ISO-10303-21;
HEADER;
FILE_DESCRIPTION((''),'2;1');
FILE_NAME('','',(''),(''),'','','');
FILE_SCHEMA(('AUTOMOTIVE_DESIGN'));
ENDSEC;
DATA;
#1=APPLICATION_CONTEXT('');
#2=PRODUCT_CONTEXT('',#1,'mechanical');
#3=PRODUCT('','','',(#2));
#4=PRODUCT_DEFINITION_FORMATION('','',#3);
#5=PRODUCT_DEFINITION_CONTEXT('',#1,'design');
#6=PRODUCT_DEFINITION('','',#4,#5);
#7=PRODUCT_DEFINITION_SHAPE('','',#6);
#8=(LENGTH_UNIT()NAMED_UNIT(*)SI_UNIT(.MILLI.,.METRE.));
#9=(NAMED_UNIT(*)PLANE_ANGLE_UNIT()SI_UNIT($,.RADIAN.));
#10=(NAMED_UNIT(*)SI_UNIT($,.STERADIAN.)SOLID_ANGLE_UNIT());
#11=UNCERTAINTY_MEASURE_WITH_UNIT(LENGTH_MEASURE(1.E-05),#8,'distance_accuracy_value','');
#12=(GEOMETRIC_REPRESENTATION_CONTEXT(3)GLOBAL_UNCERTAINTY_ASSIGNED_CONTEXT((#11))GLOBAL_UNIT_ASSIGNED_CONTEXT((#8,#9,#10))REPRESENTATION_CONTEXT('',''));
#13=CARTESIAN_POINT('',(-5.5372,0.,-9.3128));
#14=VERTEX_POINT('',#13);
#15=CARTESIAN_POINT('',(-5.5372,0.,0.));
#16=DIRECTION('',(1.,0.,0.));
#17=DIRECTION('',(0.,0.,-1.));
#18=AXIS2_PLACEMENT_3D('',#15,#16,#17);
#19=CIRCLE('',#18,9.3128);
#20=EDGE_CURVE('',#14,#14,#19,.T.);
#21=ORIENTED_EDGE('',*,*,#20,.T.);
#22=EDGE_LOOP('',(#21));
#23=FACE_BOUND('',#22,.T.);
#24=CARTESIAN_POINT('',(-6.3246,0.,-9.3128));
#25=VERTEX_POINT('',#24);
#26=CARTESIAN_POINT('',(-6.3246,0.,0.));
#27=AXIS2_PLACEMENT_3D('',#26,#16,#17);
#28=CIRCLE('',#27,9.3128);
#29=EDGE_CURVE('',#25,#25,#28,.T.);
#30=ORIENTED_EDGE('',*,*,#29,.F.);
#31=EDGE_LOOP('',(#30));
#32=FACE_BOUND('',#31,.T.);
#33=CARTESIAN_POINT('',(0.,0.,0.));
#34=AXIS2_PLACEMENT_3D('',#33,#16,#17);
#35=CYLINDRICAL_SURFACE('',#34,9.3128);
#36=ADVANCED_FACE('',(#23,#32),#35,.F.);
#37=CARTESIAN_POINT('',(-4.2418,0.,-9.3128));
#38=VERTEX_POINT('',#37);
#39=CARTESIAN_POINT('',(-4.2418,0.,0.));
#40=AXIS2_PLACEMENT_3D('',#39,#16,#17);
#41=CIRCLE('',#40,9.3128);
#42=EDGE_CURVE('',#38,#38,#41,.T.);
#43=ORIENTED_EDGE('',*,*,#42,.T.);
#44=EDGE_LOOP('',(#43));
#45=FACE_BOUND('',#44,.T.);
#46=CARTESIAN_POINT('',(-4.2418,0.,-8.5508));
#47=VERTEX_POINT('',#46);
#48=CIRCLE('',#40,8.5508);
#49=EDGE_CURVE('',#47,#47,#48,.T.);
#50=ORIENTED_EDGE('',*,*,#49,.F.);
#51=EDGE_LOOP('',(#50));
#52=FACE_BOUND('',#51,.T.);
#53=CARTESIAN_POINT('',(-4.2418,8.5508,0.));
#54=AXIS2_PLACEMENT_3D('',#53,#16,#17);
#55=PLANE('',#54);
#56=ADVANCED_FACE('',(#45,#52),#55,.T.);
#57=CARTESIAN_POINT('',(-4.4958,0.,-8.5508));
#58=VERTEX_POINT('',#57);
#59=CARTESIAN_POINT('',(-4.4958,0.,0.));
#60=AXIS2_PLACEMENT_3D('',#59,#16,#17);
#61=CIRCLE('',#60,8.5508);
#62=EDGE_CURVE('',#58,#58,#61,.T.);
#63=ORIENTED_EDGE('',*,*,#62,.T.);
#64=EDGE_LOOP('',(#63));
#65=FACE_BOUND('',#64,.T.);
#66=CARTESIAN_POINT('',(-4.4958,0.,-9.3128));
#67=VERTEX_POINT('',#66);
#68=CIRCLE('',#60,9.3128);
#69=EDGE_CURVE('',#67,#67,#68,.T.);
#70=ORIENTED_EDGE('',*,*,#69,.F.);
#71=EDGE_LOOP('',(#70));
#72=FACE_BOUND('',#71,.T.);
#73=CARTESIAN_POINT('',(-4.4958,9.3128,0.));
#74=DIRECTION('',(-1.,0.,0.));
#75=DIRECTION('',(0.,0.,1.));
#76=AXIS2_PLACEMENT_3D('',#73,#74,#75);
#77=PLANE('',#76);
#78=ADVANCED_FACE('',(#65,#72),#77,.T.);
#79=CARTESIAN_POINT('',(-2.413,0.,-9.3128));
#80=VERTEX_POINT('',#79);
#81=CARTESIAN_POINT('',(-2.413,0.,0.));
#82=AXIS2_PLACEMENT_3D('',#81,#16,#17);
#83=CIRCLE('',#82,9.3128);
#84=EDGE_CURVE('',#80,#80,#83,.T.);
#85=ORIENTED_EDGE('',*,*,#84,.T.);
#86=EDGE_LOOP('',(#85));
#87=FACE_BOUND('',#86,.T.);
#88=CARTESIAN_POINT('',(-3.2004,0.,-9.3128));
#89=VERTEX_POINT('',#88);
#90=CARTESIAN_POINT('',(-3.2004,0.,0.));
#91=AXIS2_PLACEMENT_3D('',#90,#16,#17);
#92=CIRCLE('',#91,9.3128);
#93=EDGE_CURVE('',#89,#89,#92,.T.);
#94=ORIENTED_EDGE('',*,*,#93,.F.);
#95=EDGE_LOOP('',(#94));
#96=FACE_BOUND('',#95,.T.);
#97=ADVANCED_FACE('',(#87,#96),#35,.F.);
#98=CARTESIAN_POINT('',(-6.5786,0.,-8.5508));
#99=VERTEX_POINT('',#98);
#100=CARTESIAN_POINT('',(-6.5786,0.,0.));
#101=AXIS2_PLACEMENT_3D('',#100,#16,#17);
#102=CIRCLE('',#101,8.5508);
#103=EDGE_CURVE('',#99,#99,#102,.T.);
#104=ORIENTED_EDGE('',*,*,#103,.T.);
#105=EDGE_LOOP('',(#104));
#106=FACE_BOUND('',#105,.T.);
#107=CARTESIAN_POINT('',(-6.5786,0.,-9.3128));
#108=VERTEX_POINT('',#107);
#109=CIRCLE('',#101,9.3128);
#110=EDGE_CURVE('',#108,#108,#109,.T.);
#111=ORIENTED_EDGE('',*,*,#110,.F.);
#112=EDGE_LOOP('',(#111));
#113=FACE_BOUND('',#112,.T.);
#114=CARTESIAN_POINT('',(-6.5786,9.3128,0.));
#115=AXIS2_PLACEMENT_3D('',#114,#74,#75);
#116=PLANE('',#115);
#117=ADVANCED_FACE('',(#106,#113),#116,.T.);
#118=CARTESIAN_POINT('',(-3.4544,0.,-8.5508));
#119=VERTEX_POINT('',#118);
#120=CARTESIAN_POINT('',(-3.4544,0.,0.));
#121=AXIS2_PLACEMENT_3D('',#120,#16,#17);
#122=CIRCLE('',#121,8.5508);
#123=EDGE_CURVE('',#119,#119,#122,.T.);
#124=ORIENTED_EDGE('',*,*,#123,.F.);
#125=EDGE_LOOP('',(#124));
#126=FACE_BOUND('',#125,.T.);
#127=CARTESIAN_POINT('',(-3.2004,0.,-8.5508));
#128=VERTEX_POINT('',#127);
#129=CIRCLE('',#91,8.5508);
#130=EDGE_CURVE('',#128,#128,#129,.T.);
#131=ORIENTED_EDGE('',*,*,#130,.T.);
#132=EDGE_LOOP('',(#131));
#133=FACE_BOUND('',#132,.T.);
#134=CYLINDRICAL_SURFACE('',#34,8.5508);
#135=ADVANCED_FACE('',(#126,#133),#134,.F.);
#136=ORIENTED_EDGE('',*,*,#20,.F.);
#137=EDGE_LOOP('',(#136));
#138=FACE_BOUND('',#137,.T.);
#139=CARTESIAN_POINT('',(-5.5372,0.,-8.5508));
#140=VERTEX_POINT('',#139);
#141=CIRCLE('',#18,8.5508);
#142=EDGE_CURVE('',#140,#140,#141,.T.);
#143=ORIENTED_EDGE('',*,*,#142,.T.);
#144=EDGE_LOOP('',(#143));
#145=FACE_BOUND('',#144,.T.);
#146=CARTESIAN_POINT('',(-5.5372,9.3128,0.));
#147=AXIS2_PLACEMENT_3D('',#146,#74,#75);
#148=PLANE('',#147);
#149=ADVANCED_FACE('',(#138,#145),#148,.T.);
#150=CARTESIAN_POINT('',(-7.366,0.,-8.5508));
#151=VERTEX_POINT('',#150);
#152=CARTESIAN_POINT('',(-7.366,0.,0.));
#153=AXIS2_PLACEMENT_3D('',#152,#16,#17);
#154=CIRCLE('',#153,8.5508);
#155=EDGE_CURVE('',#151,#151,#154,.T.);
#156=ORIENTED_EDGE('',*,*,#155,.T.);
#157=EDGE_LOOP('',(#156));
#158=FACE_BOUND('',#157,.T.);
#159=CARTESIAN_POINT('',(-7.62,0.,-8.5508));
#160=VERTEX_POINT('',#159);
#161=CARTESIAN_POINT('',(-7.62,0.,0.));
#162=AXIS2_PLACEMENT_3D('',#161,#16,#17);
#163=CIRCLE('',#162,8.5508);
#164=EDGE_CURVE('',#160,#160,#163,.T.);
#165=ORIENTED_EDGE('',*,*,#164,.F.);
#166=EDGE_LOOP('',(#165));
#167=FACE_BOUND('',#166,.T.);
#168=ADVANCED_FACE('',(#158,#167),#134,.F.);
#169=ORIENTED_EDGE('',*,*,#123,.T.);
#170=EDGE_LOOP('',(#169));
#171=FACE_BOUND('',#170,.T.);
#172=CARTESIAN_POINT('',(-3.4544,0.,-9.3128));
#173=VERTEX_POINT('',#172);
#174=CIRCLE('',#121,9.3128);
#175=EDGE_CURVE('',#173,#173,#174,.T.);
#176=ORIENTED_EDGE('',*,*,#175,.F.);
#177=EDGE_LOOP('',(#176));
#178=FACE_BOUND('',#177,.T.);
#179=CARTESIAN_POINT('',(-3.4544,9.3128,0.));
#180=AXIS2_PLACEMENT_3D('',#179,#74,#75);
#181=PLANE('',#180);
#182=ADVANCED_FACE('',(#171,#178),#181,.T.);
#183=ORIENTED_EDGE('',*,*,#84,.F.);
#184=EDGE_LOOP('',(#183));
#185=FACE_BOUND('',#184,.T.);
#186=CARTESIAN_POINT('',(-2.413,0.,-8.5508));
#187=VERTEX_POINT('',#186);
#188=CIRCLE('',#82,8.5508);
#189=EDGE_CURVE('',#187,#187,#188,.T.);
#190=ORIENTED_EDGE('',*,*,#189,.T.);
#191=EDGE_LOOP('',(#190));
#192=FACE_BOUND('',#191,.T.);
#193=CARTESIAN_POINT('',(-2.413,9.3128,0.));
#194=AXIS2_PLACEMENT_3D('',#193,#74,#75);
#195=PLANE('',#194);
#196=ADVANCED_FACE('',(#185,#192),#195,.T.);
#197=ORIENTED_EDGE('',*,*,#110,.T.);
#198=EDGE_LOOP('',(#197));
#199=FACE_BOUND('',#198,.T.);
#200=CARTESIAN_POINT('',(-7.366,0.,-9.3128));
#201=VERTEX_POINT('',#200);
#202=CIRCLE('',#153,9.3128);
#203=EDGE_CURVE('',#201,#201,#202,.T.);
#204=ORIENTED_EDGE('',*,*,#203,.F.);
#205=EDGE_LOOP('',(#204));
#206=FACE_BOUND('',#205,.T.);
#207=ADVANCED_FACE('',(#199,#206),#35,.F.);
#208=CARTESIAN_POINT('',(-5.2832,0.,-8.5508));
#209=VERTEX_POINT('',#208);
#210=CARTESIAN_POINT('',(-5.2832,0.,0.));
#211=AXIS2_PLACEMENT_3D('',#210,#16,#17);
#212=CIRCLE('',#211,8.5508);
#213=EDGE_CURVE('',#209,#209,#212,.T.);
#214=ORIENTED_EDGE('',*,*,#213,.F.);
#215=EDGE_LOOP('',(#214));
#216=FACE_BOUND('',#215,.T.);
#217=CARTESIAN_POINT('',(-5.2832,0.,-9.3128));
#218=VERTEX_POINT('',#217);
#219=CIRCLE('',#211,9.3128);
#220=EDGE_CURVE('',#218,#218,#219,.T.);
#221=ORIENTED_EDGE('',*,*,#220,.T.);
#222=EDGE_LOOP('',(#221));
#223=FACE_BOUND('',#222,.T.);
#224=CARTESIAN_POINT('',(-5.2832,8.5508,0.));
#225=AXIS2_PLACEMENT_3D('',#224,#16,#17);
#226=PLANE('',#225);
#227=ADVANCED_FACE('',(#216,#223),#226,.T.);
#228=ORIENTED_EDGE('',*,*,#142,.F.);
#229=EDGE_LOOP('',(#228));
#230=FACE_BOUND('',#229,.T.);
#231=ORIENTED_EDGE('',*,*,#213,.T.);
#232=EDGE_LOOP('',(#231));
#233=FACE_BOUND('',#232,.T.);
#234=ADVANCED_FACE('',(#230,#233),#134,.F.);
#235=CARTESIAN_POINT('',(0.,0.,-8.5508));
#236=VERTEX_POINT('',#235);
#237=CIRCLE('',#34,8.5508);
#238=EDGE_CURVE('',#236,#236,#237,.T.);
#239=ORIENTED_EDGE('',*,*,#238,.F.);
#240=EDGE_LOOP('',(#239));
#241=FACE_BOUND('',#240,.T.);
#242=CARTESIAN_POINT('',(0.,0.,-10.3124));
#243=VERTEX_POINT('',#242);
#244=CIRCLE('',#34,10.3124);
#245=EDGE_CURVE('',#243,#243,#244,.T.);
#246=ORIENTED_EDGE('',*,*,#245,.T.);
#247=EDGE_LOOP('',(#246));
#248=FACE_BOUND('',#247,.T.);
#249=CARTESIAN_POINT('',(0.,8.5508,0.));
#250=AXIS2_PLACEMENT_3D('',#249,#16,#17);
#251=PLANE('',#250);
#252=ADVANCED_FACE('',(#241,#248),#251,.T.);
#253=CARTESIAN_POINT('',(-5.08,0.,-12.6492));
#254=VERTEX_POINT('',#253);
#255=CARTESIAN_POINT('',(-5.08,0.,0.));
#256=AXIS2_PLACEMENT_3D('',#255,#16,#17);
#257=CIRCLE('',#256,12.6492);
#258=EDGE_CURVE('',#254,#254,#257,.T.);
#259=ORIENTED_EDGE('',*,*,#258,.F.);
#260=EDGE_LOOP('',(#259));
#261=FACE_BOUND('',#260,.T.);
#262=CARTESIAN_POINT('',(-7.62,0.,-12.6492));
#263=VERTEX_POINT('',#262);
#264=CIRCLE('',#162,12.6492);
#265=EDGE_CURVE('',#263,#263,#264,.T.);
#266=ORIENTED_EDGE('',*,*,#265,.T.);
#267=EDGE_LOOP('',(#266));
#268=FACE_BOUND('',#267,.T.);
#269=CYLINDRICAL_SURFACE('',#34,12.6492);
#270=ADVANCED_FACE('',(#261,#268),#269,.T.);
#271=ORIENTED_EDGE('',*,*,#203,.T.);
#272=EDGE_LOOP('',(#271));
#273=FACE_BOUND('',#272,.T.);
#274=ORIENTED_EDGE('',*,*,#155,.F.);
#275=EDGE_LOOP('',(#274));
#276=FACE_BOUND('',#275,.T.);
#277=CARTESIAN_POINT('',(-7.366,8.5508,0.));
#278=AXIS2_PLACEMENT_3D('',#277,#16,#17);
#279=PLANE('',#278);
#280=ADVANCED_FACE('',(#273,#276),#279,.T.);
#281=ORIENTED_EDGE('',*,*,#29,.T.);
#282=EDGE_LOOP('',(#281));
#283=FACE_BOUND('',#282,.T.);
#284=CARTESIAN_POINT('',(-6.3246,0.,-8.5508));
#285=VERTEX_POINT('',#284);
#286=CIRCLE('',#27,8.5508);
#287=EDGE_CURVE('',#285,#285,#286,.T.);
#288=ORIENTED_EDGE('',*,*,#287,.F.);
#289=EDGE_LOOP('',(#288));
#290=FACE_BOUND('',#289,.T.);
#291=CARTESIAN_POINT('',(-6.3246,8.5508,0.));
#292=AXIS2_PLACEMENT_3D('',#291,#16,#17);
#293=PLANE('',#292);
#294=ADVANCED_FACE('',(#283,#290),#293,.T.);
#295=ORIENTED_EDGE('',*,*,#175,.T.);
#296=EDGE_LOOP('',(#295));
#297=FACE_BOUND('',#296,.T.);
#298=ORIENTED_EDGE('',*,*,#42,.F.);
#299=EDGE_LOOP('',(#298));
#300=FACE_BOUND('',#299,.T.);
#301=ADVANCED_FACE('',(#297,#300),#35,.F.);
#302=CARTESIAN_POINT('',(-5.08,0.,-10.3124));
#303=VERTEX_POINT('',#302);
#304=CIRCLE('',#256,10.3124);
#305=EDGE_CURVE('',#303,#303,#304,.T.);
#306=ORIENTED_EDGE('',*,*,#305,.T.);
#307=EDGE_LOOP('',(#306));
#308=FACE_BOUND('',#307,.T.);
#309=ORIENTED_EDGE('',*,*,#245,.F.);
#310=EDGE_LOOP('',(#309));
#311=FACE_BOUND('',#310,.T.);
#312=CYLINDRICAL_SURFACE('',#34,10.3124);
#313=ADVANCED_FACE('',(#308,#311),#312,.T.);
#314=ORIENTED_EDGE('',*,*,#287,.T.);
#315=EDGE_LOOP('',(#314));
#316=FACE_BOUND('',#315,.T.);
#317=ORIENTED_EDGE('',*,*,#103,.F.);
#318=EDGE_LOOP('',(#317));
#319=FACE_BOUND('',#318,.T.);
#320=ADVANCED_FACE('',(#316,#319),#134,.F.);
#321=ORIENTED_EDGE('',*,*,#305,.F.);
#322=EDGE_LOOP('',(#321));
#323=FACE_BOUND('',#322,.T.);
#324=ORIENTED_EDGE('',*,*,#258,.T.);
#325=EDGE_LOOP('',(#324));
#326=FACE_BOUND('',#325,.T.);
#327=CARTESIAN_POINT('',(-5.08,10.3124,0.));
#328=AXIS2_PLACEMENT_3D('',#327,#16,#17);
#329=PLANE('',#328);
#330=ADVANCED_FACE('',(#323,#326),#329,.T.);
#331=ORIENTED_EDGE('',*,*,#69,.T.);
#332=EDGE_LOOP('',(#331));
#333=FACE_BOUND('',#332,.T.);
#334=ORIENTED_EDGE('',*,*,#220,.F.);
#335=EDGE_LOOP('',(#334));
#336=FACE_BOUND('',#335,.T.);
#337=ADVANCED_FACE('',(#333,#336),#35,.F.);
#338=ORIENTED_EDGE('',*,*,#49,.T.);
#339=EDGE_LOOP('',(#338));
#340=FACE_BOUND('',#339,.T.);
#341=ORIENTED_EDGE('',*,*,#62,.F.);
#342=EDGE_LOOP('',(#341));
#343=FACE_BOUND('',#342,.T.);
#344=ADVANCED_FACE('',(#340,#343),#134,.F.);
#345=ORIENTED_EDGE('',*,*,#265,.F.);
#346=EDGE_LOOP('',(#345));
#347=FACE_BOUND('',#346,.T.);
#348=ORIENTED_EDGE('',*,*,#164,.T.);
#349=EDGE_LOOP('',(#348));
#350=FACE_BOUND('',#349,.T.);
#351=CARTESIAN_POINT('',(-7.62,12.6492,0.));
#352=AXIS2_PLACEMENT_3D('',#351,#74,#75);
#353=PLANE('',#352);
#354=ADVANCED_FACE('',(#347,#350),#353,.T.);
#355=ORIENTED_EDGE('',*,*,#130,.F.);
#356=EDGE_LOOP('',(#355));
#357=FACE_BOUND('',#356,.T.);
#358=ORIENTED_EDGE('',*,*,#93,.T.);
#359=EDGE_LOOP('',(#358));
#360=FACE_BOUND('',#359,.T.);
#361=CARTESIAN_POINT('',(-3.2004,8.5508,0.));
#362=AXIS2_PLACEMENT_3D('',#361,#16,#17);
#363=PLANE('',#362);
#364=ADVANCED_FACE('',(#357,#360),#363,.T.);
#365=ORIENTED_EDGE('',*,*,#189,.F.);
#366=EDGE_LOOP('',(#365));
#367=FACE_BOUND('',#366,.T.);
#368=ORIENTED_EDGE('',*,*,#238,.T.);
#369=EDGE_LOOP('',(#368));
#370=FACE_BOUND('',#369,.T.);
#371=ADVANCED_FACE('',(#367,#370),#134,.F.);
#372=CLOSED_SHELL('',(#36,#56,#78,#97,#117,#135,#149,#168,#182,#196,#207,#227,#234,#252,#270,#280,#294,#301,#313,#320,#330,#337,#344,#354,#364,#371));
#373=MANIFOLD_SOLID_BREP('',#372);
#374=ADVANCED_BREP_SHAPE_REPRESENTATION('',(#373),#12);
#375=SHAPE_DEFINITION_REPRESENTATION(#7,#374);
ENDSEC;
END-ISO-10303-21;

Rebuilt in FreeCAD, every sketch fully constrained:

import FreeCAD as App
import Part
import Sketcher
Q = App.Units.Quantity


def add_polygon(sketch, points):
    """Adds a closed chain of lines whose ends are joined by coincident constraints."""
    first, n = sketch.GeometryCount, len(points)
    for a, b in zip(points, points[1:] + points[:1]):
        sketch.addGeometry(Part.LineSegment(App.Vector(*a, 0), App.Vector(*b, 0)), False)
    for i in range(n):
        sketch.addConstraint(Sketcher.Constraint("Coincident", first + i, 2, first + (i + 1) % n, 1))

doc = App.newDocument("Part")
body = doc.addObject("PartDesign::Body", "Body")

sketch1 = body.newObject("Sketcher::SketchObject", "Sketch")
sketch1.AttachmentSupport = (doc.getObject("XY_Plane"), [""])
sketch1.MapMode = "FlatFace"
add_polygon(sketch1, [(-7.62, 12.65), (-7.62, 8.55), (-7.37, 8.55), (-7.37, 9.31), (-6.58, 9.31), (-6.58, 8.55), (-6.32, 8.55), (-6.32, 9.31), (-5.54, 9.31), (-5.54, 8.55), (-5.28, 8.55), (-5.28, 9.31), (-4.5, 9.31), (-4.5, 8.55), (-4.24, 8.55), (-4.24, 9.31), (-3.45, 9.31), (-3.45, 8.55), (-3.2, 8.55), (-3.2, 9.31), (-2.41, 9.31), (-2.41, 8.55), (0, 8.55), (0, 10.31), (-5.08, 10.31), (-5.08, 12.65)])
sketch1.addConstraint(Sketcher.Constraint("Vertical", 0))
sketch1.addConstraint(Sketcher.Constraint("Horizontal", 1))
sketch1.addConstraint(Sketcher.Constraint("Vertical", 2))
sketch1.addConstraint(Sketcher.Constraint("Horizontal", 3))
sketch1.addConstraint(Sketcher.Constraint("Vertical", 4))
sketch1.addConstraint(Sketcher.Constraint("Horizontal", 5))
sketch1.addConstraint(Sketcher.Constraint("Vertical", 6))
sketch1.addConstraint(Sketcher.Constraint("Horizontal", 7))
sketch1.addConstraint(Sketcher.Constraint("Vertical", 8))
sketch1.addConstraint(Sketcher.Constraint("Horizontal", 9))
sketch1.addConstraint(Sketcher.Constraint("Vertical", 10))
sketch1.addConstraint(Sketcher.Constraint("Horizontal", 11))
sketch1.addConstraint(Sketcher.Constraint("Vertical", 12))
sketch1.addConstraint(Sketcher.Constraint("Horizontal", 13))
sketch1.addConstraint(Sketcher.Constraint("Vertical", 14))
sketch1.addConstraint(Sketcher.Constraint("Horizontal", 15))
sketch1.addConstraint(Sketcher.Constraint("Vertical", 16))
sketch1.addConstraint(Sketcher.Constraint("Horizontal", 17))
sketch1.addConstraint(Sketcher.Constraint("Vertical", 18))
sketch1.addConstraint(Sketcher.Constraint("Horizontal", 19))
sketch1.addConstraint(Sketcher.Constraint("Vertical", 20))
sketch1.addConstraint(Sketcher.Constraint("Horizontal", 21))
sketch1.addConstraint(Sketcher.Constraint("Vertical", 22))
sketch1.addConstraint(Sketcher.Constraint("Horizontal", 23))
sketch1.addConstraint(Sketcher.Constraint("Vertical", 24))
sketch1.addConstraint(Sketcher.Constraint("Horizontal", 25))
sketch1.addConstraint(Sketcher.Constraint("PointOnObject", 21, 2, -2))
sketch1.addConstraint(Sketcher.Constraint("Horizontal", 1, 2, 4, 2))
sketch1.addConstraint(Sketcher.Constraint("Horizontal", 3, 2, 6, 2))
sketch1.addConstraint(Sketcher.Constraint("Horizontal", 5, 2, 8, 2))
sketch1.addConstraint(Sketcher.Constraint("Horizontal", 7, 2, 10, 2))
sketch1.addConstraint(Sketcher.Constraint("Horizontal", 9, 2, 12, 2))
sketch1.addConstraint(Sketcher.Constraint("Horizontal", 11, 2, 14, 2))
sketch1.addConstraint(Sketcher.Constraint("Horizontal", 13, 2, 16, 2))
sketch1.addConstraint(Sketcher.Constraint("Horizontal", 15, 2, 18, 2))
sketch1.addConstraint(Sketcher.Constraint("Horizontal", 17, 2, 20, 2))
sketch1.addConstraint(Sketcher.Constraint("Equal", 1, 5))
sketch1.addConstraint(Sketcher.Constraint("Equal", 3, 7))
sketch1.addConstraint(Sketcher.Constraint("Equal", 5, 9))
sketch1.addConstraint(Sketcher.Constraint("Equal", 7, 11))
sketch1.addConstraint(Sketcher.Constraint("Equal", 9, 13))
sketch1.addConstraint(Sketcher.Constraint("Equal", 11, 15))
sketch1.addConstraint(Sketcher.Constraint("Equal", 13, 17))
sketch1.addConstraint(Sketcher.Constraint("Equal", 15, 19))
sketch1.addConstraint(Sketcher.Constraint("DistanceX", 23, 2, 23, 1, Q("0.2 in")))
sketch1.addConstraint(Sketcher.Constraint("DistanceX", 25, 2, 25, 1, Q("0.1 in")))
sketch1.addConstraint(Sketcher.Constraint("DistanceX", 1, 1, 1, 2, Q("0.01 in")))
sketch1.addConstraint(Sketcher.Constraint("DistanceY", 2, 1, 2, 2, Q("0.03 in")))
sketch1.addConstraint(Sketcher.Constraint("DistanceX", 3, 1, 3, 2, Q("0.031 in")))
sketch1.addConstraint(Sketcher.Constraint("DistanceY", 24, 1, 24, 2, Q("0.092 in")))
sketch1.addConstraint(Sketcher.Constraint("DistanceY", -1, 1, 22, 2, Q("0.406 in")))
sketch1.addConstraint(Sketcher.Constraint("DistanceY", 0, 2, 0, 1, Q("4.0984 mm")))
revolution = body.newObject("PartDesign::Revolution", "Revolution")
revolution.Profile = sketch1
revolution.ReferenceAxis = (sketch1, ["H_Axis"])
revolution.Angle = 360

doc.recompute()
